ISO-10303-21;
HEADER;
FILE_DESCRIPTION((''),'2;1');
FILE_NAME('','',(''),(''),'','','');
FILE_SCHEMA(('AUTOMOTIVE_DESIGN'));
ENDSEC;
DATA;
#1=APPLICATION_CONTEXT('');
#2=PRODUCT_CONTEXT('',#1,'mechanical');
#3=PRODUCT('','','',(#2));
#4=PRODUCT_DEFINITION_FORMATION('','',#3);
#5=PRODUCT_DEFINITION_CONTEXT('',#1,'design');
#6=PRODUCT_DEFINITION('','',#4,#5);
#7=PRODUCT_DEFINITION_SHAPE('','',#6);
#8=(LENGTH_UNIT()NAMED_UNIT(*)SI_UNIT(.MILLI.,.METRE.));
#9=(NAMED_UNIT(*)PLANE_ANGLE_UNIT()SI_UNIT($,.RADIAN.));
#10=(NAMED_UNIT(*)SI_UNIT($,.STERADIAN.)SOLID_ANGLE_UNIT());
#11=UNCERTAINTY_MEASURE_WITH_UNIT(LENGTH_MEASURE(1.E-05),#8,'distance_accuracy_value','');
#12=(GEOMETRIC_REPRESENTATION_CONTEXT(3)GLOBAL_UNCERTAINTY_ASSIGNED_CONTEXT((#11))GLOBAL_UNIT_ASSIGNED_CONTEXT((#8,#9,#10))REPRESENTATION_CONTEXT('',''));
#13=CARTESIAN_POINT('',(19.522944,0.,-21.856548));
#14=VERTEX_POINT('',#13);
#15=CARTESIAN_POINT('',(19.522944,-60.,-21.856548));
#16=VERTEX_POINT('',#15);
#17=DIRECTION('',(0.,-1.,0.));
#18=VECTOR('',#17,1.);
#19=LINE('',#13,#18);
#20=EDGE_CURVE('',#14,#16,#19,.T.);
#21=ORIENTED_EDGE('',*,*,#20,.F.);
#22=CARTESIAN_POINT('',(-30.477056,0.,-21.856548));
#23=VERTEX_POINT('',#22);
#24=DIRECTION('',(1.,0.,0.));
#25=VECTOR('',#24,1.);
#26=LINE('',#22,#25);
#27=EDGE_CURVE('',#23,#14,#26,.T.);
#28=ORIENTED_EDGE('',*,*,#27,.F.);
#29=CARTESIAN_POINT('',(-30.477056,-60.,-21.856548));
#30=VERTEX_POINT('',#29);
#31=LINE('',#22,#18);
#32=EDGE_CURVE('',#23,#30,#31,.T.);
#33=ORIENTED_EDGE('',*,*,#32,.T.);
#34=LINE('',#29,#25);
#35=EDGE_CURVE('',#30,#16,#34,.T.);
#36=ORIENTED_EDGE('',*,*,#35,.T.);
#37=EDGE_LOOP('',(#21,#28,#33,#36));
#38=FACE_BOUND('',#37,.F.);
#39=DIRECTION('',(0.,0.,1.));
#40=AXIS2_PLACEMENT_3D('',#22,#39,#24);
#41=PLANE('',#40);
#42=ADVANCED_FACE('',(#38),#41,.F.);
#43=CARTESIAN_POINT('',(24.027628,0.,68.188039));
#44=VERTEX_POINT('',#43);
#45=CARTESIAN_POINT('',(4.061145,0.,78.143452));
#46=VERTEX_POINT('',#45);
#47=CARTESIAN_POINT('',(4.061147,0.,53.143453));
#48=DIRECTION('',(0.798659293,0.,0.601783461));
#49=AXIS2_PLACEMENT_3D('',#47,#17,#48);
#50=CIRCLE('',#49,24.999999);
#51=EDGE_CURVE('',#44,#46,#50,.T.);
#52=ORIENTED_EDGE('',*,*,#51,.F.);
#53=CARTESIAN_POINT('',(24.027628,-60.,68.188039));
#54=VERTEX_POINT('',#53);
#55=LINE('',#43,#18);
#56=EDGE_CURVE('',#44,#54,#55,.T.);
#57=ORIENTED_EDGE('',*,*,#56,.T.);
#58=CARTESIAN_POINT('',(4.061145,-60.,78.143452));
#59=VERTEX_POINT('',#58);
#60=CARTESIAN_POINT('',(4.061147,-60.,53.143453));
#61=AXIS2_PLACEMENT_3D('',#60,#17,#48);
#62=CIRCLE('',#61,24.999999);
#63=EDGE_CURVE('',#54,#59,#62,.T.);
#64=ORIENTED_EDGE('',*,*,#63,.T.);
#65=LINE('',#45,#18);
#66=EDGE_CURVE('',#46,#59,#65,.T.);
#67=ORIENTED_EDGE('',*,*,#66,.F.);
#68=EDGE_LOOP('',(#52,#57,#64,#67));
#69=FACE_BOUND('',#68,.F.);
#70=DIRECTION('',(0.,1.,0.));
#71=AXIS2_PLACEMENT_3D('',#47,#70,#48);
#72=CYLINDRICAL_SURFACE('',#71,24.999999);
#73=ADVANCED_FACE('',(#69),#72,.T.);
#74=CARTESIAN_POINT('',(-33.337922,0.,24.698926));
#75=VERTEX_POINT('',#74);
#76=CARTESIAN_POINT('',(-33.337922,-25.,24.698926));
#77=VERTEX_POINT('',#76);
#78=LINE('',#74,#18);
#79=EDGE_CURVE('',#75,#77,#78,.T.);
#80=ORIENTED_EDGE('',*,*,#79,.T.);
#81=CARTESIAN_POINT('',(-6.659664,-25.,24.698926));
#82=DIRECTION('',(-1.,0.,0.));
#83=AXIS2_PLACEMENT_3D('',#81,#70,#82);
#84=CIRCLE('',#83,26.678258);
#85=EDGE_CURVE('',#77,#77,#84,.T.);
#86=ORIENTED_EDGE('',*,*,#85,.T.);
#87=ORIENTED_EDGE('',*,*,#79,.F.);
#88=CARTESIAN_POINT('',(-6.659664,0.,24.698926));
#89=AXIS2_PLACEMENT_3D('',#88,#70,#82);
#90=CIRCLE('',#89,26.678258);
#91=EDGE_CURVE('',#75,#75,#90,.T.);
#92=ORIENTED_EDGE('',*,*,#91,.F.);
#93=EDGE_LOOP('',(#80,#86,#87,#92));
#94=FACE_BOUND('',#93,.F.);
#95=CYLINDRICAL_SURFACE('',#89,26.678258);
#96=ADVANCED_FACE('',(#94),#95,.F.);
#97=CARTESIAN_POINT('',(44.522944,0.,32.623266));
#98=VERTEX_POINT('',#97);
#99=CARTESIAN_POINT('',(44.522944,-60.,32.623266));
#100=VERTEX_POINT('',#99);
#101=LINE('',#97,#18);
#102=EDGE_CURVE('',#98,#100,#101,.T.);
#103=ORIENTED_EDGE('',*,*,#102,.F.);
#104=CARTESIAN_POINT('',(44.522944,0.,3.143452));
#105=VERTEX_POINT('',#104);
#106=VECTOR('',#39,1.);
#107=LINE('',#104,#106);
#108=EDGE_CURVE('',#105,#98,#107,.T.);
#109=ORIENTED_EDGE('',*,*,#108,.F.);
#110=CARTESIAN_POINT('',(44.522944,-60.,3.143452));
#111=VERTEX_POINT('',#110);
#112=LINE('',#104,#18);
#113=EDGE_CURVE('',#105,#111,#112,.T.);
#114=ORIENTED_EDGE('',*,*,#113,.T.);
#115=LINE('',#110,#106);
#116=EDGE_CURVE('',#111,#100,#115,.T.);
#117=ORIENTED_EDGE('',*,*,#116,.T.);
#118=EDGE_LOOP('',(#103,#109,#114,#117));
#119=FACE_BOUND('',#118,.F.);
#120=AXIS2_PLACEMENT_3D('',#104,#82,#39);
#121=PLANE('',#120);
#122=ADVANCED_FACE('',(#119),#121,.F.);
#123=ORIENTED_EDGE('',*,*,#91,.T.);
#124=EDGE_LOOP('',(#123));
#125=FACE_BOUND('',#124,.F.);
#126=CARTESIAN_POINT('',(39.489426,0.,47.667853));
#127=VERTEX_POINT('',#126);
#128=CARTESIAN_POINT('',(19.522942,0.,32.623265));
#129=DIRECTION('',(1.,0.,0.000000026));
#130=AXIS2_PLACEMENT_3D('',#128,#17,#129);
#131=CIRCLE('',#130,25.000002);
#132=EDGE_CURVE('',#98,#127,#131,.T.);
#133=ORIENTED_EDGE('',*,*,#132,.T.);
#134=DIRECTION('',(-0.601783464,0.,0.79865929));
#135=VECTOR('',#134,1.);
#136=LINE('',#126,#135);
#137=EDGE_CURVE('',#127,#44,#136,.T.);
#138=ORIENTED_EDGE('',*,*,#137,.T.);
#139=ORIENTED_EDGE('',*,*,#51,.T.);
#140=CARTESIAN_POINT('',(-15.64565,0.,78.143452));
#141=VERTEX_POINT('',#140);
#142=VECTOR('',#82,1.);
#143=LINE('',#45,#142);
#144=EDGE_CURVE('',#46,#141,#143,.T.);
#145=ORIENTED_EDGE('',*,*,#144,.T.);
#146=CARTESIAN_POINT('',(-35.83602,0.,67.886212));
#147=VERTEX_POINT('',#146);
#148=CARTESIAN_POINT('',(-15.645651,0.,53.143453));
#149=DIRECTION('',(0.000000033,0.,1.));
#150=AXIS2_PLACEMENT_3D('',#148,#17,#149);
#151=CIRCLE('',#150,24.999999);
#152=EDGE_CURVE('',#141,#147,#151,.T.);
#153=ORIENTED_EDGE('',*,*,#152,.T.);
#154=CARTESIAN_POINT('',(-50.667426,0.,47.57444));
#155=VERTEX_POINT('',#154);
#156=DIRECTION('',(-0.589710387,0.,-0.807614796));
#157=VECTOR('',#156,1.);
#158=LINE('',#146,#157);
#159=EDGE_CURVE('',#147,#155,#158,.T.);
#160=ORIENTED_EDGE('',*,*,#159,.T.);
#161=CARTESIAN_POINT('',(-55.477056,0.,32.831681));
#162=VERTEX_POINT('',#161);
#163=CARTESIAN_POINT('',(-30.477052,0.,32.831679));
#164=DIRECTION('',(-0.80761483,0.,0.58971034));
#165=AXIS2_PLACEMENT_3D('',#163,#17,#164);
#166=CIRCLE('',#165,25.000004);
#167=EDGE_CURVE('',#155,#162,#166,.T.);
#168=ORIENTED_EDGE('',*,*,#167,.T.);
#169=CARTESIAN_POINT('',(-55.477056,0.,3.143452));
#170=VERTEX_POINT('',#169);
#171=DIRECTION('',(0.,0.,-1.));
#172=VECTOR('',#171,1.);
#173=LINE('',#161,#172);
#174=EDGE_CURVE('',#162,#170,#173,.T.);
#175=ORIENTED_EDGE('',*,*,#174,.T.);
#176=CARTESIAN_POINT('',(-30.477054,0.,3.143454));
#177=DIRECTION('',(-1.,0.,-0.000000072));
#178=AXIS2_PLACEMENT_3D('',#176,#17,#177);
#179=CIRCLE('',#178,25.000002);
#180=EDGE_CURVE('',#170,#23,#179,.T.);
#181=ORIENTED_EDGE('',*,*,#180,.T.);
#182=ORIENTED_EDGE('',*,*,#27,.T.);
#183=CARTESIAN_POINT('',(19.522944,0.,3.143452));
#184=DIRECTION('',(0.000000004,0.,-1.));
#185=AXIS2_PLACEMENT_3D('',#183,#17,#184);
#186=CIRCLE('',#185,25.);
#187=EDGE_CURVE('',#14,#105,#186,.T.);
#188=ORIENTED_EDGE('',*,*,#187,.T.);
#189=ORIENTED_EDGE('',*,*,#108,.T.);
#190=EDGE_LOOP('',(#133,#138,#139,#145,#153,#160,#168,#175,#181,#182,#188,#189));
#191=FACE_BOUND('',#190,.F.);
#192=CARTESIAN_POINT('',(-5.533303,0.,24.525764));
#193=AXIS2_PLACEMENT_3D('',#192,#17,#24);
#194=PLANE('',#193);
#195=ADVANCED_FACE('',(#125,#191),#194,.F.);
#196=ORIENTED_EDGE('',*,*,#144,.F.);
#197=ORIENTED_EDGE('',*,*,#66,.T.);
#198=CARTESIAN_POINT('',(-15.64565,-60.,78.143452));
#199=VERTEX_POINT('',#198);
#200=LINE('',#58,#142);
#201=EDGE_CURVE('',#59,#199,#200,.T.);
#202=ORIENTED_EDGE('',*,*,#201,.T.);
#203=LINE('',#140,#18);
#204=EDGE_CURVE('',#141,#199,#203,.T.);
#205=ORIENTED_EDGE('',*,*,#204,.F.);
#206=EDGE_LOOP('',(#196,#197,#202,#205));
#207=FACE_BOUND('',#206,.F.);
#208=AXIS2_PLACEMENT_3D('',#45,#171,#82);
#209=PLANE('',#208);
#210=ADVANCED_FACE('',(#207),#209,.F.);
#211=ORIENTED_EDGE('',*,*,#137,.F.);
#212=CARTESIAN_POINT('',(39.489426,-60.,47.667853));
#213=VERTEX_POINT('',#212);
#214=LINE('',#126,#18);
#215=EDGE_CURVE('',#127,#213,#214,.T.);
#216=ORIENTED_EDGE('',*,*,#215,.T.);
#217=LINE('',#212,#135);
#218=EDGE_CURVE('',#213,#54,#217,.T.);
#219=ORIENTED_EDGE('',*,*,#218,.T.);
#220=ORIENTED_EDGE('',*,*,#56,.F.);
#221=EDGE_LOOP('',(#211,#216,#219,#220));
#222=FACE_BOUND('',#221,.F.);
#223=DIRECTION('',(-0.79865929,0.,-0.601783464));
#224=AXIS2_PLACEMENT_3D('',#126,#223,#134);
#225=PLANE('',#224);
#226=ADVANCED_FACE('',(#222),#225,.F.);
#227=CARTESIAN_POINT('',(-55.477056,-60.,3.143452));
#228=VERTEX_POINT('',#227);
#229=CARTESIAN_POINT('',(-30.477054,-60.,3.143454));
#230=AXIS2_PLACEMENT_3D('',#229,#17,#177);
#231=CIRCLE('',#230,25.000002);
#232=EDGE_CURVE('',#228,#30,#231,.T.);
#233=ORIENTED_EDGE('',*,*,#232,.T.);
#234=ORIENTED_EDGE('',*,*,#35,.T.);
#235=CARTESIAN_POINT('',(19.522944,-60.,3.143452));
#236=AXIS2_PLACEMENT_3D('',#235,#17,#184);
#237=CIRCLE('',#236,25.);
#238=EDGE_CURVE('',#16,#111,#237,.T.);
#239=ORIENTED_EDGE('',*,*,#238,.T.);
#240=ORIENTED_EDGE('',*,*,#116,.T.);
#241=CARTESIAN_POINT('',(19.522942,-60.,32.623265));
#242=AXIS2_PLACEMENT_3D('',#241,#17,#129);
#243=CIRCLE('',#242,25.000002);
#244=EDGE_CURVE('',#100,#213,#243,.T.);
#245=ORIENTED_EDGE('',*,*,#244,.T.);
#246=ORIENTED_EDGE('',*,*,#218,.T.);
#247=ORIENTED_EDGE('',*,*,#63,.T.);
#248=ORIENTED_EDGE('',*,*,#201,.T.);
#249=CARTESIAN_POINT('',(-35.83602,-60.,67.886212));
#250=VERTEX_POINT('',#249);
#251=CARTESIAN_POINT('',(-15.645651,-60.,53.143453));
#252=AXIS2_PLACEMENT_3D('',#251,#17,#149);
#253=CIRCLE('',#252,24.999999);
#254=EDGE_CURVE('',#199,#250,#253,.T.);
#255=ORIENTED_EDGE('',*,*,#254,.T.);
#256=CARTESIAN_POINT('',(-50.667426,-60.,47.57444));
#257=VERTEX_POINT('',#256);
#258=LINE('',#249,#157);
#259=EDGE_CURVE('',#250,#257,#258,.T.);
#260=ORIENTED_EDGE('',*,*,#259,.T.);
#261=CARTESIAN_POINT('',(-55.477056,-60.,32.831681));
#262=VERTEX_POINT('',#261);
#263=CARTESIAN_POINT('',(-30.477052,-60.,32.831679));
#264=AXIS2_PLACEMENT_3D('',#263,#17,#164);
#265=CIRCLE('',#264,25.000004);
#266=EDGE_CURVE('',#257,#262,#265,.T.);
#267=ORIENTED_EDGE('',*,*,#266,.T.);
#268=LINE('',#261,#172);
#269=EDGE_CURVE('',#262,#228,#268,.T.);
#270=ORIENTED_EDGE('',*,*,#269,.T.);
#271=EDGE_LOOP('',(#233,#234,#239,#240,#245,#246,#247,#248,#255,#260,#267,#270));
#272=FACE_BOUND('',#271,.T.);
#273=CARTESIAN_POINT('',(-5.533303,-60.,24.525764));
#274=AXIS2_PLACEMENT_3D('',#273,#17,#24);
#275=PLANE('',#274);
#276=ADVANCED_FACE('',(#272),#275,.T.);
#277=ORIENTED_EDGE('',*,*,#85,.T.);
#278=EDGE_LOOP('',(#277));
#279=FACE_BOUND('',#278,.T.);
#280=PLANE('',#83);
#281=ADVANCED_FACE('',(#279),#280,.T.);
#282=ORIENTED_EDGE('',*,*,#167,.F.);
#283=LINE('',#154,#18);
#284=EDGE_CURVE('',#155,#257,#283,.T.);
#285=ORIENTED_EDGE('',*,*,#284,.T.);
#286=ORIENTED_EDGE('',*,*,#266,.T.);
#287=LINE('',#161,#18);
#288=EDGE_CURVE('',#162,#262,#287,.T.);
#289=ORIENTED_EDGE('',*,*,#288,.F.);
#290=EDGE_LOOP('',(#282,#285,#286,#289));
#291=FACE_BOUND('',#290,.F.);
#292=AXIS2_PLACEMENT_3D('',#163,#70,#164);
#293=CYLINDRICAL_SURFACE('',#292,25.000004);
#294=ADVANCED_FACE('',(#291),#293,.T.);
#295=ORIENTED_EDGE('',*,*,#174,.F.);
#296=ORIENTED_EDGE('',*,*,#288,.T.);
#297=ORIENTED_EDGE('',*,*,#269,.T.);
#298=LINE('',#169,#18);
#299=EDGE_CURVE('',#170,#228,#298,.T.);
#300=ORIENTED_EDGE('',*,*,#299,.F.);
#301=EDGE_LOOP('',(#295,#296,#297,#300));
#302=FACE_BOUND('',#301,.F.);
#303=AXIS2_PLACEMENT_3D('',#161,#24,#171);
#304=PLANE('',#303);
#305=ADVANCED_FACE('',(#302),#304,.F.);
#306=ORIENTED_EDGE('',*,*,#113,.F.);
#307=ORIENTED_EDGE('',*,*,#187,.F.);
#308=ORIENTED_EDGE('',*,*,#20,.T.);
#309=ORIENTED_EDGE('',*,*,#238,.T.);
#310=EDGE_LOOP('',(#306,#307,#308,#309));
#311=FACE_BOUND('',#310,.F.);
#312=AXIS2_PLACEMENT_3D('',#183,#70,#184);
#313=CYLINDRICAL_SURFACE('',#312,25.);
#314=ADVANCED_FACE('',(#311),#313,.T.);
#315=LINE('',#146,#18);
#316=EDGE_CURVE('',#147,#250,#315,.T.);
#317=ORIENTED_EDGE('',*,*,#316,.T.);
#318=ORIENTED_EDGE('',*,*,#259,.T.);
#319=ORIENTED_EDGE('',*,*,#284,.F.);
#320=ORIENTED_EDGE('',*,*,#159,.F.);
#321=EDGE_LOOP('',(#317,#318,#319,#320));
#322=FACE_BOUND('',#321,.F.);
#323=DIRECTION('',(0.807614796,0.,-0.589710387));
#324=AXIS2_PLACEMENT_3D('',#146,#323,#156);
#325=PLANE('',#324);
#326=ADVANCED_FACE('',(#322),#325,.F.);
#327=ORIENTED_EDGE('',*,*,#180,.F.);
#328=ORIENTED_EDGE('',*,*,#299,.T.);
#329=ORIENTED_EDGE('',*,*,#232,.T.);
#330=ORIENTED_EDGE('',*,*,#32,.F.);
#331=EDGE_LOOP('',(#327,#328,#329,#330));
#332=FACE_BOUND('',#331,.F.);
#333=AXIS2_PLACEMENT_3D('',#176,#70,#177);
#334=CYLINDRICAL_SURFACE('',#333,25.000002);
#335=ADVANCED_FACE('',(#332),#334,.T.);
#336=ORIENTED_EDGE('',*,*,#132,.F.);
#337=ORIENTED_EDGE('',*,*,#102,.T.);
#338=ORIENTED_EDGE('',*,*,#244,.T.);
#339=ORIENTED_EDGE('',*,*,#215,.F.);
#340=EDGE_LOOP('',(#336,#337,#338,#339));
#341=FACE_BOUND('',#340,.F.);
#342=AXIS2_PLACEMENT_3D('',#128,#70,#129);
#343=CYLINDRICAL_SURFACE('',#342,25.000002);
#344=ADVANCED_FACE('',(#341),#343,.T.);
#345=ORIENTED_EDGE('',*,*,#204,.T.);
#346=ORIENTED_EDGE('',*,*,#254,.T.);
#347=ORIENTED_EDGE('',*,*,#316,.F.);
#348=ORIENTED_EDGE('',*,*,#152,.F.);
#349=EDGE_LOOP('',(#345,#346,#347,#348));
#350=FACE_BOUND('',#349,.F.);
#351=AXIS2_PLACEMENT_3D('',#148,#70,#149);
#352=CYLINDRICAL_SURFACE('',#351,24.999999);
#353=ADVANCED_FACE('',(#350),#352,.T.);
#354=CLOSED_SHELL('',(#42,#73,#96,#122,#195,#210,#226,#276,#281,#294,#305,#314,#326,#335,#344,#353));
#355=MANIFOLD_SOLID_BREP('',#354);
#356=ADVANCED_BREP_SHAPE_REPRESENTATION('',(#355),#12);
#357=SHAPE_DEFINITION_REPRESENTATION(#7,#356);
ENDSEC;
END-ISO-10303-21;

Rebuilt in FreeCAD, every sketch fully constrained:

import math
import FreeCAD as App
import Part
import Sketcher
from FreeCAD import Vector
Q = App.Units.Quantity

doc = App.newDocument("Part")
body = doc.addObject("PartDesign::Body", "Body")

sketch1 = body.newObject("Sketcher::SketchObject", "Sketch")
sketch1.AttachmentSupport = (doc.getObject("XZ_Plane"), [""])
sketch1.MapMode = "FlatFace"
sketch1.addGeometry([
    Part.LineSegment(Vector(4.061145, 78.143452, 0), Vector(-15.64565, 78.143452, 0)),
    Part.ArcOfCircle(Part.Circle(Vector(-15.645651, 53.143453, 0), Vector(0, 0, 1), 24.999999), math.radians(89.999998), math.radians(143.863541)),
    Part.LineSegment(Vector(-35.83602, 67.886212, 0), Vector(-50.667426, 47.57444, 0)),
    Part.ArcOfCircle(Part.Circle(Vector(-30.477052, 32.831679, 0), Vector(0, 0, 1), 25.000004), math.radians(143.863544), math.radians(179.999996)),
    Part.LineSegment(Vector(-55.477056, 32.831681, 0), Vector(-55.477056, 3.143452, 0)),
    Part.ArcOfCircle(Part.Circle(Vector(-30.477054, 3.143454, 0), Vector(0, 0, 1), 25.000002), math.radians(-179.999996), math.radians(-90.000004)),
    Part.LineSegment(Vector(-30.477056, -21.856548, 0), Vector(19.522944, -21.856548, 0)),
    Part.ArcOfCircle(Part.Circle(Vector(19.522944, 3.143452, 0), Vector(0, 0, 1), 25), math.radians(-90), math.radians(0)),
    Part.LineSegment(Vector(44.522944, 3.143452, 0), Vector(44.522944, 32.623266, 0)),
    Part.ArcOfCircle(Part.Circle(Vector(19.522942, 32.623265, 0), Vector(0, 0, 1), 25.000002), math.radians(0.000001), math.radians(36.997735)),
    Part.LineSegment(Vector(39.489426, 47.667853, 0), Vector(24.027628, 68.188039, 0)),
    Part.ArcOfCircle(Part.Circle(Vector(4.061147, 53.143453, 0), Vector(0, 0, 1), 24.999999), math.radians(36.997736), math.radians(90.000004)),
], False)
sketch1.addConstraint([
    Sketcher.Constraint("Tangent", 0, 2, 1, 1),
    Sketcher.Constraint("Tangent", 1, 2, 2, 1),
    Sketcher.Constraint("Tangent", 2, 2, 3, 1),
    Sketcher.Constraint("Tangent", 3, 2, 4, 1),
    Sketcher.Constraint("Tangent", 4, 2, 5, 1),
    Sketcher.Constraint("Tangent", 5, 2, 6, 1),
    Sketcher.Constraint("Tangent", 6, 2, 7, 1),
    Sketcher.Constraint("Tangent", 7, 2, 8, 1),
    Sketcher.Constraint("Tangent", 8, 2, 9, 1),
    Sketcher.Constraint("Tangent", 9, 2, 10, 1),
    Sketcher.Constraint("Tangent", 10, 2, 11, 1),
    Sketcher.Constraint("Tangent", 11, 2, 0, 1),
    Sketcher.Constraint("Horizontal", 0),
    Sketcher.Constraint("Vertical", 4),
    Sketcher.Constraint("Horizontal", 6),
    Sketcher.Constraint("Vertical", 8),
    Sketcher.Constraint("Equal", 5, 7),
    Sketcher.Constraint("Equal", 7, 9),
    Sketcher.Constraint("Equal", 7, 11),
    Sketcher.Constraint("Horizontal", 1, 3, 11, 3),
    Sketcher.Constraint("Radius", 1, Q("24.999999 mm")),
    Sketcher.Constraint("DistanceX", 6, 1, 6, 2, Q("50 mm")),
    Sketcher.Constraint("DistanceY", 5, 3, 1, 3, Q("49.999999 mm")),
    Sketcher.Constraint("Radius", 3, Q("25.000004 mm")),
    Sketcher.Constraint("DistanceY", 4, 2, 4, 1, Q("29.688229 mm")),
    Sketcher.Constraint("DistanceX", 3, 3, 1, 3, Q("14.831401 mm")),
    Sketcher.Constraint("DistanceX", 3, 3, 11, 3, Q("34.538199 mm")),
    Sketcher.Constraint("DistanceY", 9, 2, 11, 3, Q("5.4756 mm")),
    Sketcher.Constraint("DistanceX", 1, 3, -1, 1, Q("15.645651 mm")),
    Sketcher.Constraint("DistanceY", -1, 1, 3, 3, Q("32.831679 mm")),
])
pad1 = body.newObject("PartDesign::Pad", "Pad")
pad1.Profile = sketch1
pad1.Length = 60

sketch2 = body.newObject("Sketcher::SketchObject", "Sketch001")
sketch2.AttachmentSupport = (doc.getObject("XZ_Plane"), [""])
sketch2.MapMode = "FlatFace"
sketch2.addGeometry(Part.Circle(Vector(-6.659664, 24.698926, 0), Vector(0, 0, 1), 26.678258), False)
sketch2.addConstraint([
    Sketcher.Constraint("Diameter", 0, Q("53.356516 mm")),
    Sketcher.Constraint("DistanceX", 0, 3, -1, 1, Q("6.659664 mm")),
    Sketcher.Constraint("DistanceY", -1, 1, 0, 3, Q("24.698926 mm")),
])
pocket1 = body.newObject("PartDesign::Pocket", "Pocket")
pocket1.Profile = sketch2
pocket1.Length = 25
pocket1.Reversed = True

doc.recompute()
